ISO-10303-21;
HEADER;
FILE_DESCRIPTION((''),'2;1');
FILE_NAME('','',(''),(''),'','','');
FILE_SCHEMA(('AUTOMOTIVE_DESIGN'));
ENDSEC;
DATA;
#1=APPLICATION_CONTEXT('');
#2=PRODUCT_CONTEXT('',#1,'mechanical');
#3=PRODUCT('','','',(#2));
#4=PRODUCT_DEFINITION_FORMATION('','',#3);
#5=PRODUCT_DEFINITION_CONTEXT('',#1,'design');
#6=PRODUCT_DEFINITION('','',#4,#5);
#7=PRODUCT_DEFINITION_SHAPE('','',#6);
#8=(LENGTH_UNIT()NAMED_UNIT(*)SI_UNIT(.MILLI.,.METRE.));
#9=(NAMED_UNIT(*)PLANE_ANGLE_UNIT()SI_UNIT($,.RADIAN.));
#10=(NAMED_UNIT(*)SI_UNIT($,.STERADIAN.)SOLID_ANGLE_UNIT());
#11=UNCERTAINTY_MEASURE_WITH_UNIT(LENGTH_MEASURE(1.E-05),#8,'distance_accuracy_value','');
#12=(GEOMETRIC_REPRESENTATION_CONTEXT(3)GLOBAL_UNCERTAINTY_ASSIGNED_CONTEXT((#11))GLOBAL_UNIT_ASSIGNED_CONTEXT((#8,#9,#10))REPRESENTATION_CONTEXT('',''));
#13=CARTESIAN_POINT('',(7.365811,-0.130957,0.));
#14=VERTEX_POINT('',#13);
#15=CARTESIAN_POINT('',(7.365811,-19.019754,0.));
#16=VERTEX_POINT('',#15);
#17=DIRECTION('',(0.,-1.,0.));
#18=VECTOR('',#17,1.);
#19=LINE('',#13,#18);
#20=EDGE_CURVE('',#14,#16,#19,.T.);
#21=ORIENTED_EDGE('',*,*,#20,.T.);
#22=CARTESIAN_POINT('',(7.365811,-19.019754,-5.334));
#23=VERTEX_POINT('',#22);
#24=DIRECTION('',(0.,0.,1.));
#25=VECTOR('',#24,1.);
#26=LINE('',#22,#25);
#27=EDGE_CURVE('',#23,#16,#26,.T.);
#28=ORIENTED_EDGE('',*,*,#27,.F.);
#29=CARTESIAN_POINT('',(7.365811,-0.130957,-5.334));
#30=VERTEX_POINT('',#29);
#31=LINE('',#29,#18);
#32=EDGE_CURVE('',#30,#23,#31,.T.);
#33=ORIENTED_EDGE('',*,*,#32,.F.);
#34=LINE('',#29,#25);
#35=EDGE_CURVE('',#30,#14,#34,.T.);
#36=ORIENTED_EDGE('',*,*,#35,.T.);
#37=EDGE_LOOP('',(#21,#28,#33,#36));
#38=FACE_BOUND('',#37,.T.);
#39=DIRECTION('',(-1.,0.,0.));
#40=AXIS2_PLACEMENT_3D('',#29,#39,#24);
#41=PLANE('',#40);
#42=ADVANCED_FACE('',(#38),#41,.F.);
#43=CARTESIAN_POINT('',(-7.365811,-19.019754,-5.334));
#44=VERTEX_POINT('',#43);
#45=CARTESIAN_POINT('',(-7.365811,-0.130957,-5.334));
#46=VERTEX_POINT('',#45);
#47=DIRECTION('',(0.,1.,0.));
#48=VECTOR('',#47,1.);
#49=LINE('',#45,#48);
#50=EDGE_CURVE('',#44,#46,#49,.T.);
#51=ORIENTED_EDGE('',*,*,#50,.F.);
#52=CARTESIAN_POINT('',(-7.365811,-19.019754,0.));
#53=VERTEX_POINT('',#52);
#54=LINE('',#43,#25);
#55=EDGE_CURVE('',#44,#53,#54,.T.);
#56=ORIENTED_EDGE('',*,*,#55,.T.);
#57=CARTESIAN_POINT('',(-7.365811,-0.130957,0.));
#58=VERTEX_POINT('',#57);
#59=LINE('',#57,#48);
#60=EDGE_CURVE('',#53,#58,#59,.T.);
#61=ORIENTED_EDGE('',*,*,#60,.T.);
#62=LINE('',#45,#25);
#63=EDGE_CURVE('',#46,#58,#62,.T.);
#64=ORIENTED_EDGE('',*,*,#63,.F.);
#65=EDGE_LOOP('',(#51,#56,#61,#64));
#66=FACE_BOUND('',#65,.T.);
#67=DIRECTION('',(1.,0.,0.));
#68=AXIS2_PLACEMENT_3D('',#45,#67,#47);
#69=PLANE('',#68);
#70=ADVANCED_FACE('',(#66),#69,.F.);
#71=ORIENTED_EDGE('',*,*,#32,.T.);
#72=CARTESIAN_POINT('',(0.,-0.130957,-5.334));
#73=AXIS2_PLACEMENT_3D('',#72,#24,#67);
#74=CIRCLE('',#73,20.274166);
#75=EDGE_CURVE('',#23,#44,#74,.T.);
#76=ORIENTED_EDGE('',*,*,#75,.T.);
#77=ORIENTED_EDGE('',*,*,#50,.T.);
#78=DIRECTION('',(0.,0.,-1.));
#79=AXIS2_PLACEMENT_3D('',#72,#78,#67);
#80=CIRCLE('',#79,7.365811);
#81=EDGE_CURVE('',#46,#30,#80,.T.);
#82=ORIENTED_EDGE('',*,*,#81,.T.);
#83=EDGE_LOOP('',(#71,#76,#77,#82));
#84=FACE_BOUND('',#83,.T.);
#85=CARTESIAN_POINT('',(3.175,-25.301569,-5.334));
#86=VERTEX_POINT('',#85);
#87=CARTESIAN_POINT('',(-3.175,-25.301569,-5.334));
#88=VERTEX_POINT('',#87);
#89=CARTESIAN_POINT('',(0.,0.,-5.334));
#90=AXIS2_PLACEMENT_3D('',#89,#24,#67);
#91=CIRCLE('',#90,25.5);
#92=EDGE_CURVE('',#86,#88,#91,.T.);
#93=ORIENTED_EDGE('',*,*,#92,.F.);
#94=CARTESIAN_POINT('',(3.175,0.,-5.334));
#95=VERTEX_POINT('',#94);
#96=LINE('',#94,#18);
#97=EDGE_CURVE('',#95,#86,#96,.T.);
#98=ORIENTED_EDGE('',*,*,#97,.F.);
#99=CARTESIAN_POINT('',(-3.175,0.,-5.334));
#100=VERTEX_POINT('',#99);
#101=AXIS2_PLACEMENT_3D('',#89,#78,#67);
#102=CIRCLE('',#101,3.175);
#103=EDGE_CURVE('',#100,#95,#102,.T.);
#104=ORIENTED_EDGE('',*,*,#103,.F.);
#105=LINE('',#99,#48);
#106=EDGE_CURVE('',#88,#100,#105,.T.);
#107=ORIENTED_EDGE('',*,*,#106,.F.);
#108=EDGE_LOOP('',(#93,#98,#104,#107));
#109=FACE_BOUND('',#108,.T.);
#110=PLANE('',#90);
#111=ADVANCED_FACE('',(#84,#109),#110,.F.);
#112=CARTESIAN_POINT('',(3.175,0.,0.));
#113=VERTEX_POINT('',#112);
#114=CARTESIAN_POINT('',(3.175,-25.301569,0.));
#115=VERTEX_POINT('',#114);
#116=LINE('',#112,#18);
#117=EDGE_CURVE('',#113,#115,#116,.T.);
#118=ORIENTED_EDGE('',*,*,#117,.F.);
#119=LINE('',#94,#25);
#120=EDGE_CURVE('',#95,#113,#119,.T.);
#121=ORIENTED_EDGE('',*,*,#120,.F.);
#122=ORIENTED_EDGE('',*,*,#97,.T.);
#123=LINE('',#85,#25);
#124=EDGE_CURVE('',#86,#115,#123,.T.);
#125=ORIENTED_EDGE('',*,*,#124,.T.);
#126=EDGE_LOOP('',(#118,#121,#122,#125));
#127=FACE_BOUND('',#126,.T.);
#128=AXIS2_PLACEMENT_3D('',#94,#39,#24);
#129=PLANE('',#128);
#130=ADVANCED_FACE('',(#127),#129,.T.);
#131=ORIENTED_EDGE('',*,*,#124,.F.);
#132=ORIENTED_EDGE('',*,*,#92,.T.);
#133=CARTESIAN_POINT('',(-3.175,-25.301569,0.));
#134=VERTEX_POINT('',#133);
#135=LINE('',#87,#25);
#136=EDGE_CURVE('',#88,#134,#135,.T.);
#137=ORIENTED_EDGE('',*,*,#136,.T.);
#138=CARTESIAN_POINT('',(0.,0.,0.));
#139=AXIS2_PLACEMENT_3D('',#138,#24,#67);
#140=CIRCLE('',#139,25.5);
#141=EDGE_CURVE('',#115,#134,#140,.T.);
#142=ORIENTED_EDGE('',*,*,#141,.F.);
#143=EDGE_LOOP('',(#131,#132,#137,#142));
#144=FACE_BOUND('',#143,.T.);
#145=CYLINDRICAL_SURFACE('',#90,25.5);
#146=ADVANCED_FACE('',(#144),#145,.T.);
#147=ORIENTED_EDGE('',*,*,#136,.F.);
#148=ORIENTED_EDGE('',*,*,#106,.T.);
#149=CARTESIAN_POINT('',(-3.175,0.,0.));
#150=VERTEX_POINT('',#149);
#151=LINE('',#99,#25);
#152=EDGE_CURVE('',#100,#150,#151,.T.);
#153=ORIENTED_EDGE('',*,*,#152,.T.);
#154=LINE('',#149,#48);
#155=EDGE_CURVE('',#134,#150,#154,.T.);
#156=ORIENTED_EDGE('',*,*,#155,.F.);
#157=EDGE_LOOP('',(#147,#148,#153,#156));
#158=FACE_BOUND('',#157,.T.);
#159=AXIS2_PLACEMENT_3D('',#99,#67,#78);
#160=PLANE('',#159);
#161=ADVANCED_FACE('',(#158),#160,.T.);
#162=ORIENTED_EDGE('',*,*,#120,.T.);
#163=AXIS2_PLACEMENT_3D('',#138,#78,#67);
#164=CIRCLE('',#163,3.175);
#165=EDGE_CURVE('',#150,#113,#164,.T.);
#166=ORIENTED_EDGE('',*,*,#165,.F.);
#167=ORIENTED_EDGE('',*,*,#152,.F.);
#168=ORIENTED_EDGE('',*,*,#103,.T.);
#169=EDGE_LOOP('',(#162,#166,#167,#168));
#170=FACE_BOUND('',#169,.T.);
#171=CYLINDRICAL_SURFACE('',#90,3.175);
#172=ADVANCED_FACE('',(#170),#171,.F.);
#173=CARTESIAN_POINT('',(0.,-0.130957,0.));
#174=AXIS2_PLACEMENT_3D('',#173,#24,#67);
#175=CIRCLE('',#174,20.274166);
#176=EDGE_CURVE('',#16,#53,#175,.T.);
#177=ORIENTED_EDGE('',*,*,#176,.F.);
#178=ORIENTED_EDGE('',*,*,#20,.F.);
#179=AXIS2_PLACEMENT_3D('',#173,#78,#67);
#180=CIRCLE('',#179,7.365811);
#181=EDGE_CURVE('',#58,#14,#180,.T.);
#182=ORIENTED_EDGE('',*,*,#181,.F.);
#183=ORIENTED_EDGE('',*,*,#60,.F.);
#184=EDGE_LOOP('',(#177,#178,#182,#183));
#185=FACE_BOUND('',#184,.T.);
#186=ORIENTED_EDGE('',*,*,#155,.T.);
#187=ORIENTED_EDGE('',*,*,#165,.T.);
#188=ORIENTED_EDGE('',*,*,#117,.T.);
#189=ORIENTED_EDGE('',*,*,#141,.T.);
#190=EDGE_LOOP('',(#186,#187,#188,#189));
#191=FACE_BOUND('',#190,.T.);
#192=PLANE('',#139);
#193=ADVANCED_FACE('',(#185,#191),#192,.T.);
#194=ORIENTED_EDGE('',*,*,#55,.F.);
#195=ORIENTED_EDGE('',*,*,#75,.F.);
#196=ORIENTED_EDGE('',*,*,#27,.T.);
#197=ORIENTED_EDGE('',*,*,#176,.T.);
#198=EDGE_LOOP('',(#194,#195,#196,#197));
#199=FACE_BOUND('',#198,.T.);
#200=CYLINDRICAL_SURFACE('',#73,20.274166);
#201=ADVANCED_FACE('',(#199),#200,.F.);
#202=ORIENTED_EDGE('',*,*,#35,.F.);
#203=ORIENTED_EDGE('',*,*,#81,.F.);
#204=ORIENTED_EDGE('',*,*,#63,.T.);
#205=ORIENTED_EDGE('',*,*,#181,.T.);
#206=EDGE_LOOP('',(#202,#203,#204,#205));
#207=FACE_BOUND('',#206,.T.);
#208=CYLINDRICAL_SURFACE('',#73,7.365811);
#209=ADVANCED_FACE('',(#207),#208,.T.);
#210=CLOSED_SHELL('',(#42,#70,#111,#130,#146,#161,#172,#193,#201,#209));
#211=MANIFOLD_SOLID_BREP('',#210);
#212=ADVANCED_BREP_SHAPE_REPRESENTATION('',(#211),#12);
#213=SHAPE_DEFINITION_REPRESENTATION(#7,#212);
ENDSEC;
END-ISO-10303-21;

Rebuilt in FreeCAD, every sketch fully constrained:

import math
import FreeCAD as App
import Part
import Sketcher
Q = App.Units.Quantity

doc = App.newDocument("Part")
body = doc.addObject("PartDesign::Body", "Body")

# Sketch on XY plane
sketch1 = body.newObject("Sketcher::SketchObject", "Sketch")
sketch1.AttachmentSupport = (doc.getObject("XY_Plane"), [""])
sketch1.MapMode = "FlatFace"
sketch1.addGeometry([
    Part.LineSegment(App.Vector(-3.2, -25.3, 0), App.Vector(-3.2, 0, 0)),
    Part.ArcOfCircle(Part.Circle(App.Vector(0, 0, 0), App.Vector(0, 0, 1), 3.2), math.radians(0), math.radians(180)),
    Part.LineSegment(App.Vector(3.2, 0, 0), App.Vector(3.2, -25.3, 0)),
    Part.ArcOfCircle(Part.Circle(App.Vector(0, 0, 0), App.Vector(0, 0, 1), 25.5), math.radians(-83), math.radians(263)),
], False)
sketch1.addConstraint([
    Sketcher.Constraint("Tangent", 0, 2, 1, 2),
    Sketcher.Constraint("Tangent", 1, 1, 2, 1),
    Sketcher.Constraint("Coincident", 2, 2, 3, 1),
    Sketcher.Constraint("Coincident", 3, 2, 0, 1),
    Sketcher.Constraint("Vertical", 0),
    Sketcher.Constraint("Vertical", 2),
    Sketcher.Constraint("Coincident", 1, 3, -1, 1),
    Sketcher.Constraint("Coincident", 3, 3, -1, 1),
    Sketcher.Constraint("Radius", 1, Q("0.125 in")),
    Sketcher.Constraint("Radius", 3, 25.5),
])
pad1 = body.newObject("PartDesign::Pad", "Pad")
pad1.Profile = sketch1
pad1.Length = Q("0.21 in")
pad1.Reversed = True

# Sketch on XY plane
sketch2 = body.newObject("Sketcher::SketchObject", "Sketch001")
sketch2.AttachmentSupport = (doc.getObject("XY_Plane"), [""])
sketch2.MapMode = "FlatFace"
sketch2.addGeometry([
    Part.LineSegment(App.Vector(-7, -19, 0), App.Vector(-7, 0, 0)),
    Part.ArcOfCircle(Part.Circle(App.Vector(0, 0, 0), App.Vector(0, 0, 1), 7), math.radians(0), math.radians(180)),
    Part.LineSegment(App.Vector(7, 0, 0), App.Vector(7, -19, 0)),
    Part.ArcOfCircle(Part.Circle(App.Vector(0, 0, 0), App.Vector(0, 0, 1), 20), math.radians(-69), math.radians(249)),
], False)
sketch2.addConstraint([
    Sketcher.Constraint("Tangent", 0, 2, 1, 2),
    Sketcher.Constraint("Tangent", 1, 1, 2, 1),
    Sketcher.Constraint("Coincident", 2, 2, 3, 1),
    Sketcher.Constraint("Coincident", 3, 2, 0, 1),
    Sketcher.Constraint("Vertical", 0),
    Sketcher.Constraint("Vertical", 2),
    Sketcher.Constraint("Coincident", 3, 3, 1, 3),
    Sketcher.Constraint("PointOnObject", 1, 3, -2),
    Sketcher.Constraint("Radius", 1, 7.365811),
    Sketcher.Constraint("Radius", 3, 20.274166),
    Sketcher.Constraint("DistanceY", 1, 3, -1, 1, 0.130957),
])
pocket1 = body.newObject("PartDesign::Pocket", "Pocket")
pocket1.Profile = sketch2
pocket1.Type = "ThroughAll"

doc.recompute()
